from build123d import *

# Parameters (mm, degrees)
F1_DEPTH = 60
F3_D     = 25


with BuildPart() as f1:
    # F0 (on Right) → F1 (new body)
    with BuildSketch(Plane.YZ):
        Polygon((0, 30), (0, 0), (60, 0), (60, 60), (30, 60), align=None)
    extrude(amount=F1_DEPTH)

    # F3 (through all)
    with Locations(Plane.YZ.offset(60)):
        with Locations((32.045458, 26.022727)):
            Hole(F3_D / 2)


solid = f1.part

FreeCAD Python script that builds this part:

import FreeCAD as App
import Part
import Sketcher

V = App.Vector

doc = App.newDocument("Part")
body = doc.addObject("PartDesign::Body", "Body")

# Sketch on YZ plane
sketch1 = body.newObject("Sketcher::SketchObject", "Sketch")
sketch1.AttachmentSupport = (doc.getObject("YZ_Plane"), [""])
sketch1.MapMode = "FlatFace"
sketch1.addGeometry(Part.LineSegment(V(0, 30, 0), V(0, 0, 0)), False)
sketch1.addGeometry(Part.LineSegment(V(0, 0, 0), V(60, 0, 0)), False)
sketch1.addGeometry(Part.LineSegment(V(60, 0, 0), V(60, 60, 0)), False)
sketch1.addGeometry(Part.LineSegment(V(60, 60, 0), V(30, 60, 0)), False)
sketch1.addGeometry(Part.LineSegment(V(30, 60, 0), V(0, 30, 0)), False)
sketch1.addConstraint(Sketcher.Constraint("Coincident", 0, 2, 1, 1))
sketch1.addConstraint(Sketcher.Constraint("Coincident", 1, 2, 2, 1))
sketch1.addConstraint(Sketcher.Constraint("Coincident", 2, 2, 3, 1))
sketch1.addConstraint(Sketcher.Constraint("Coincident", 3, 2, 4, 1))
sketch1.addConstraint(Sketcher.Constraint("Coincident", 4, 2, 0, 1))
sketch1.addConstraint(Sketcher.Constraint("Vertical", 0))
sketch1.addConstraint(Sketcher.Constraint("Horizontal", 1))
sketch1.addConstraint(Sketcher.Constraint("Vertical", 2))
sketch1.addConstraint(Sketcher.Constraint("Horizontal", 3))
sketch1.addConstraint(Sketcher.Constraint("Coincident", 0, 2, -1, 1))
sketch1.addConstraint(Sketcher.Constraint("Equal", 3, 0))
sketch1.addConstraint(Sketcher.Constraint("Equal", 1, 2))
sketch1.addConstraint(Sketcher.Constraint("DistanceX", 1, 1, 1, 2, 60.0))
sketch1.addConstraint(Sketcher.Constraint("DistanceX", 3, 2, 3, 1, 30.0))
pad1 = body.newObject("PartDesign::Pad", "Pad")
pad1.Profile = sketch1
pad1.Length = 60

# Sketch on YZ plane
sketch2 = body.newObject("Sketcher::SketchObject", "Sketch001")
sketch2.AttachmentSupport = (doc.getObject("YZ_Plane"), [""])
sketch2.MapMode = "FlatFace"
sketch2.AttachmentOffset = App.Placement(V(0, 0, 60), App.Rotation())
sketch2.addGeometry(Part.Circle(V(32, 26, 0), V(0, 0, 1), 12), False)
sketch2.addConstraint(Sketcher.Constraint("Diameter", 0, 25.0))
sketch2.addConstraint(Sketcher.Constraint("DistanceX", -1, 1, 0, 3, 32.045458))
sketch2.addConstraint(Sketcher.Constraint("DistanceY", -1, 1, 0, 3, 26.022727))
doc.recompute()
hole = body.newObject("PartDesign::Hole", "Hole")
hole.Profile = sketch2
hole.ThreadType = "None"
hole.Diameter = 25
hole.DepthType = "ThroughAll"

doc.recompute()
